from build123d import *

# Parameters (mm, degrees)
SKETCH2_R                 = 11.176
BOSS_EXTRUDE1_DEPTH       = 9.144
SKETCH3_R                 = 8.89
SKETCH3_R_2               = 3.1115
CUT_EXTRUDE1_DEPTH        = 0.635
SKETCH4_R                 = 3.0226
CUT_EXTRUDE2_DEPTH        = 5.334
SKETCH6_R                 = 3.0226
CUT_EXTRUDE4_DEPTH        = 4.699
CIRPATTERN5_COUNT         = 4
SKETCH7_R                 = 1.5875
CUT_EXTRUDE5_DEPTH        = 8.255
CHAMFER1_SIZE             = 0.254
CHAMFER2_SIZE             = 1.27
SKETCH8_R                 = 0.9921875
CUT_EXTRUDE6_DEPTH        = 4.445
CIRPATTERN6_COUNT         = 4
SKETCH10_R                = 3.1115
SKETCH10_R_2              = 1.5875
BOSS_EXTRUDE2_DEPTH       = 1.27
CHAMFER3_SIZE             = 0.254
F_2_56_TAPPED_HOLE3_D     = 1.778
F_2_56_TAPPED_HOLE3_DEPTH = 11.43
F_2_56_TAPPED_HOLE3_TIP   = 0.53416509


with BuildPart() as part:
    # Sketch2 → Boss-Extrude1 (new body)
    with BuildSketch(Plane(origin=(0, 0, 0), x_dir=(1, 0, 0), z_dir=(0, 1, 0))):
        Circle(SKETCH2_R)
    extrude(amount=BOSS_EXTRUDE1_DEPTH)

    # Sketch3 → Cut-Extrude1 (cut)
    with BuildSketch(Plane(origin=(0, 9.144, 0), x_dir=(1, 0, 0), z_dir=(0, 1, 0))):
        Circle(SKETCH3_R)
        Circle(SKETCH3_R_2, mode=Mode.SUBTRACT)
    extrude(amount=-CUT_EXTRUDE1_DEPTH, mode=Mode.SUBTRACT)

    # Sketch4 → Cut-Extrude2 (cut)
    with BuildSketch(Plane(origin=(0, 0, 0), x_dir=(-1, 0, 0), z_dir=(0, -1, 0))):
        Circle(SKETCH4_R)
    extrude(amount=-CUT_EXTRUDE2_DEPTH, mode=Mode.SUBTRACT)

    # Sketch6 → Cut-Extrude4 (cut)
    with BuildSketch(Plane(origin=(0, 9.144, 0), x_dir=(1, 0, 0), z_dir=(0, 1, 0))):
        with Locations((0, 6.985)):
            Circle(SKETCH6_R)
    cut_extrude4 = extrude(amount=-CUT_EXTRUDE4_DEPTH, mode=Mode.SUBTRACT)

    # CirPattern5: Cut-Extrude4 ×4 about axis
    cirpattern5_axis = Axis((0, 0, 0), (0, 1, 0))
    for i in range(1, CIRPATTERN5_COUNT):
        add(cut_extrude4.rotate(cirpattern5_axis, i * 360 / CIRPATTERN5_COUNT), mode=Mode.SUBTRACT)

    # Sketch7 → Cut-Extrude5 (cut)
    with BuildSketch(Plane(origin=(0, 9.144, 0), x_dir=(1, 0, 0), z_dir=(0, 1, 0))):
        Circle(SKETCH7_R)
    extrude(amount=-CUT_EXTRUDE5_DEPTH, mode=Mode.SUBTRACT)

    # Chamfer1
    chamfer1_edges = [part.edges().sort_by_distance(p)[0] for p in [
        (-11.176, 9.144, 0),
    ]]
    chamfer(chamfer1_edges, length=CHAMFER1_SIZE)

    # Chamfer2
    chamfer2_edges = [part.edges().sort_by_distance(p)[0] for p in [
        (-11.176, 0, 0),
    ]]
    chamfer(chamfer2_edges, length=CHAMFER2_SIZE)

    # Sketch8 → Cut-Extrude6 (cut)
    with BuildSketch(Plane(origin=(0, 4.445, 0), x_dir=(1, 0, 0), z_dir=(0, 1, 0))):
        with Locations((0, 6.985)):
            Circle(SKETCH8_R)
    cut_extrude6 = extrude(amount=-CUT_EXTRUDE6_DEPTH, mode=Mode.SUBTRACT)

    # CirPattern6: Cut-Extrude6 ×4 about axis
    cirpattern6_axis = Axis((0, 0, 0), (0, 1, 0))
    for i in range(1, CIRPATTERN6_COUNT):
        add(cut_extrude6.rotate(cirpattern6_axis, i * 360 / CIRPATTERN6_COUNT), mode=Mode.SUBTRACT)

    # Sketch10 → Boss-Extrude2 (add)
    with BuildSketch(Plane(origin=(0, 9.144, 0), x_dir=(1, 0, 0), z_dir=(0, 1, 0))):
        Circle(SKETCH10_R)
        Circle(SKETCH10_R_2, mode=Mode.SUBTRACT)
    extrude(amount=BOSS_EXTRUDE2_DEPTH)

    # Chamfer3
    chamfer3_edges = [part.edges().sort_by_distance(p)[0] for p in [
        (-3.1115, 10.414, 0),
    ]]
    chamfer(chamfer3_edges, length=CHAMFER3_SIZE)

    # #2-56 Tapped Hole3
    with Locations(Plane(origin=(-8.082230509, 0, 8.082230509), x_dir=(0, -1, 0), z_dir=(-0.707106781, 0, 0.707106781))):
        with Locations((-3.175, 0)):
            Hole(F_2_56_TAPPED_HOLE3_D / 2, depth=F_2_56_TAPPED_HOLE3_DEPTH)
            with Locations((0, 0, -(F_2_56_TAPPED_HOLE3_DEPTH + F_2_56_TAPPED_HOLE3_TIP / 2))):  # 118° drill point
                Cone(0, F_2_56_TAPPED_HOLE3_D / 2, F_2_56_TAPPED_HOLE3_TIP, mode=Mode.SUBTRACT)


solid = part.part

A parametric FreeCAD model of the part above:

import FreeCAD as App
import Part
import Sketcher
from FreeCAD import Vector
Q = App.Units.Quantity


def edges_at(feature, points):
    """Names of the edges that pass closest to the given points."""
    edges = feature.Shape.Edges
    near = lambda p: min(range(len(edges)), key=lambda i: edges[i].distToShape(Part.Vertex(*p))[0])
    return sorted({f"Edge{near(p) + 1}" for p in points})

doc = App.newDocument("Part")
body = doc.addObject("PartDesign::Body", "Body")

# Sketch on XZ plane
sketch1 = body.newObject("Sketcher::SketchObject", "Sketch")
sketch1.AttachmentSupport = (doc.getObject("XZ_Plane"), [""])
sketch1.MapMode = "FlatFace"
sketch1.addGeometry(Part.Circle(Vector(0, 0, 0), Vector(0, 0, 1), 11), False)
sketch1.addConstraint([
    Sketcher.Constraint("Coincident", 0, 3, -1, 1),
    Sketcher.Constraint("Diameter", 0, Q("0.88 in")),
])
pad1 = body.newObject("PartDesign::Pad", "Pad")
pad1.Profile = sketch1
pad1.Length = Q("0.36 in")
pad1.Reversed = True

# Sketch on XZ plane
sketch2 = body.newObject("Sketcher::SketchObject", "Sketch001")
sketch2.AttachmentSupport = (doc.getObject("XZ_Plane"), [""])
sketch2.MapMode = "FlatFace"
sketch2.AttachmentOffset = App.Placement(Vector(0, 0, -0.36 * 25.4), App.Rotation())
sketch2.addGeometry([
    Part.Circle(Vector(0, 0, 0), Vector(0, 0, 1), 8.9),
    Part.Circle(Vector(0, 0, 0), Vector(0, 0, 1), 3.1),
], False)
sketch2.addConstraint([
    Sketcher.Constraint("Coincident", 0, 3, -1, 1),
    Sketcher.Constraint("Coincident", 1, 3, -1, 1),
    Sketcher.Constraint("Diameter", 0, Q("0.7 in")),
    Sketcher.Constraint("Diameter", 1, Q("0.245 in")),
])
pocket1 = body.newObject("PartDesign::Pocket", "Pocket")
pocket1.Profile = sketch2
pocket1.Length = Q("0.025 in")
pocket1.Reversed = True

# Sketch on XZ plane
sketch3 = body.newObject("Sketcher::SketchObject", "Sketch002")
sketch3.AttachmentSupport = (doc.getObject("XZ_Plane"), [""])
sketch3.MapMode = "FlatFace"
sketch3.addGeometry(Part.Circle(Vector(0, 0, 0), Vector(0, 0, 1), 3), False)
sketch3.addConstraint([
    Sketcher.Constraint("Coincident", 0, 3, -1, 1),
    Sketcher.Constraint("Diameter", 0, Q("0.238 in")),
])
pocket2 = body.newObject("PartDesign::Pocket", "Pocket001")
pocket2.Profile = sketch3
pocket2.Length = Q("0.21 in")

# Sketch on XZ plane
sketch4 = body.newObject("Sketcher::SketchObject", "Sketch003")
sketch4.AttachmentSupport = (doc.getObject("XZ_Plane"), [""])
sketch4.MapMode = "FlatFace"
sketch4.AttachmentOffset = App.Placement(Vector(0, 0, -0.36 * 25.4), App.Rotation())
sketch4.addGeometry(Part.Circle(Vector(0, -7, 0), Vector(0, 0, 1), 3), False)
sketch4.addConstraint([
    Sketcher.Constraint("PointOnObject", 0, 3, -2),
    Sketcher.Constraint("Diameter", 0, Q("0.238 in")),
    Sketcher.Constraint("DistanceY", 0, 3, -1, 1, Q("0.275 in")),
])
pocket3 = body.newObject("PartDesign::Pocket", "Pocket002")
pocket3.Profile = sketch4
pocket3.Length = Q("0.185 in")
pocket3.Reversed = True
doc.recompute()

polarpattern = body.newObject("PartDesign::PolarPattern", "PolarPattern")
polarpattern.Originals = [pocket3]
polarpattern.Axis = (doc.getObject("Y_Axis"), [""])
polarpattern.Angle = 360
polarpattern.Occurrences = 4
body.Tip = polarpattern

# Sketch on XZ plane
sketch5 = body.newObject("Sketcher::SketchObject", "Sketch004")
sketch5.AttachmentSupport = (doc.getObject("XZ_Plane"), [""])
sketch5.MapMode = "FlatFace"
sketch5.AttachmentOffset = App.Placement(Vector(0, 0, -0.36 * 25.4), App.Rotation())
sketch5.addGeometry(Part.Circle(Vector(0, 0, 0), Vector(0, 0, 1), 1.6), False)
sketch5.addConstraint([
    Sketcher.Constraint("Coincident", 0, 3, -1, 1),
    Sketcher.Constraint("Diameter", 0, Q("0.125 in")),
])
pocket4 = body.newObject("PartDesign::Pocket", "Pocket003")
pocket4.Profile = sketch5
pocket4.Length = Q("0.325 in")
pocket4.Reversed = True
doc.recompute()

chamfer = body.newObject("PartDesign::Chamfer", "Chamfer")
chamfer.Base = (pocket4, edges_at(pocket4, [(-11.176, 9.144, 0)]))
chamfer.Size = Q("0.01 in")
doc.recompute()

chamfer2 = body.newObject("PartDesign::Chamfer", "Chamfer001")
chamfer2.Base = (chamfer, edges_at(chamfer, [(-11.176, 0, 0)]))
chamfer2.Size = Q("0.05 in")

# Sketch on XZ plane
sketch6 = body.newObject("Sketcher::SketchObject", "Sketch005")
sketch6.AttachmentSupport = (doc.getObject("XZ_Plane"), [""])
sketch6.MapMode = "FlatFace"
sketch6.AttachmentOffset = App.Placement(Vector(0, 0, -0.175 * 25.4), App.Rotation())
sketch6.addGeometry(Part.Circle(Vector(0, -7, 0), Vector(0, 0, 1), 1), False)
sketch6.addConstraint([
    Sketcher.Constraint("PointOnObject", 0, 3, -2),
    Sketcher.Constraint("Diameter", 0, Q("0.078125 in")),
    Sketcher.Constraint("DistanceY", 0, 3, -1, 1, Q("0.275 in")),
])
pocket5 = body.newObject("PartDesign::Pocket", "Pocket004")
pocket5.Profile = sketch6
pocket5.Length = Q("0.175 in")
pocket5.Reversed = True
doc.recompute()

polarpattern2 = body.newObject("PartDesign::PolarPattern", "PolarPattern001")
polarpattern2.Originals = [pocket5]
polarpattern2.Axis = (doc.getObject("Y_Axis"), [""])
polarpattern2.Angle = 360
polarpattern2.Occurrences = 4
body.Tip = polarpattern2

# Sketch on XZ plane
sketch7 = body.newObject("Sketcher::SketchObject", "Sketch006")
sketch7.AttachmentSupport = (doc.getObject("XZ_Plane"), [""])
sketch7.MapMode = "FlatFace"
sketch7.AttachmentOffset = App.Placement(Vector(0, 0, -0.36 * 25.4), App.Rotation())
sketch7.addGeometry([
    Part.Circle(Vector(0, 0, 0), Vector(0, 0, 1), 3.1),
    Part.Circle(Vector(0, 0, 0), Vector(0, 0, 1), 1.6),
], False)
sketch7.addConstraint([
    Sketcher.Constraint("Coincident", 0, 3, -1, 1),
    Sketcher.Constraint("Coincident", 1, 3, -1, 1),
    Sketcher.Constraint("Diameter", 0, Q("0.245 in")),
    Sketcher.Constraint("Diameter", 1, Q("0.125 in")),
])
pad2 = body.newObject("PartDesign::Pad", "Pad001")
pad2.Profile = sketch7
pad2.Length = Q("0.05 in")
pad2.Reversed = True
doc.recompute()

chamfer3 = body.newObject("PartDesign::Chamfer", "Chamfer002")
chamfer3.Base = (pad2, edges_at(pad2, [(-3.111, 10.414, 0)]))
chamfer3.Size = Q("0.01 in")

# Sketch on an angled plane
sketch8 = body.newObject("Sketcher::SketchObject", "Sketch007")
sketch8.Placement = App.Placement(Vector(-8.082231, 0, 8.082231), App.Rotation(Vector(0, -1, 0), Vector(0.707106781, 0, 0.707106781), Vector(-0.707106781, 0, 0.707106781), "ZXY"))
sketch8.addGeometry(Part.Circle(Vector(-3.2, 0, 0), Vector(0, 0, 1), 0.9), False)
sketch8.addConstraint([
    Sketcher.Constraint("PointOnObject", 0, 3, -1),
    Sketcher.Constraint("Diameter", 0, Q("0.07 in")),
    Sketcher.Constraint("DistanceX", 0, 3, -1, 1, Q("0.125 in")),
])
doc.recompute()
hole = body.newObject("PartDesign::Hole", "Hole")
hole.Profile = sketch8
hole.ThreadType = "None"
hole.Diameter = Q("0.07 in")
hole.DepthType = "Dimension"
hole.Depth = Q("0.45 in")
hole.DrillPoint = "Angled"
hole.DrillPointAngle = 118

doc.recompute()
